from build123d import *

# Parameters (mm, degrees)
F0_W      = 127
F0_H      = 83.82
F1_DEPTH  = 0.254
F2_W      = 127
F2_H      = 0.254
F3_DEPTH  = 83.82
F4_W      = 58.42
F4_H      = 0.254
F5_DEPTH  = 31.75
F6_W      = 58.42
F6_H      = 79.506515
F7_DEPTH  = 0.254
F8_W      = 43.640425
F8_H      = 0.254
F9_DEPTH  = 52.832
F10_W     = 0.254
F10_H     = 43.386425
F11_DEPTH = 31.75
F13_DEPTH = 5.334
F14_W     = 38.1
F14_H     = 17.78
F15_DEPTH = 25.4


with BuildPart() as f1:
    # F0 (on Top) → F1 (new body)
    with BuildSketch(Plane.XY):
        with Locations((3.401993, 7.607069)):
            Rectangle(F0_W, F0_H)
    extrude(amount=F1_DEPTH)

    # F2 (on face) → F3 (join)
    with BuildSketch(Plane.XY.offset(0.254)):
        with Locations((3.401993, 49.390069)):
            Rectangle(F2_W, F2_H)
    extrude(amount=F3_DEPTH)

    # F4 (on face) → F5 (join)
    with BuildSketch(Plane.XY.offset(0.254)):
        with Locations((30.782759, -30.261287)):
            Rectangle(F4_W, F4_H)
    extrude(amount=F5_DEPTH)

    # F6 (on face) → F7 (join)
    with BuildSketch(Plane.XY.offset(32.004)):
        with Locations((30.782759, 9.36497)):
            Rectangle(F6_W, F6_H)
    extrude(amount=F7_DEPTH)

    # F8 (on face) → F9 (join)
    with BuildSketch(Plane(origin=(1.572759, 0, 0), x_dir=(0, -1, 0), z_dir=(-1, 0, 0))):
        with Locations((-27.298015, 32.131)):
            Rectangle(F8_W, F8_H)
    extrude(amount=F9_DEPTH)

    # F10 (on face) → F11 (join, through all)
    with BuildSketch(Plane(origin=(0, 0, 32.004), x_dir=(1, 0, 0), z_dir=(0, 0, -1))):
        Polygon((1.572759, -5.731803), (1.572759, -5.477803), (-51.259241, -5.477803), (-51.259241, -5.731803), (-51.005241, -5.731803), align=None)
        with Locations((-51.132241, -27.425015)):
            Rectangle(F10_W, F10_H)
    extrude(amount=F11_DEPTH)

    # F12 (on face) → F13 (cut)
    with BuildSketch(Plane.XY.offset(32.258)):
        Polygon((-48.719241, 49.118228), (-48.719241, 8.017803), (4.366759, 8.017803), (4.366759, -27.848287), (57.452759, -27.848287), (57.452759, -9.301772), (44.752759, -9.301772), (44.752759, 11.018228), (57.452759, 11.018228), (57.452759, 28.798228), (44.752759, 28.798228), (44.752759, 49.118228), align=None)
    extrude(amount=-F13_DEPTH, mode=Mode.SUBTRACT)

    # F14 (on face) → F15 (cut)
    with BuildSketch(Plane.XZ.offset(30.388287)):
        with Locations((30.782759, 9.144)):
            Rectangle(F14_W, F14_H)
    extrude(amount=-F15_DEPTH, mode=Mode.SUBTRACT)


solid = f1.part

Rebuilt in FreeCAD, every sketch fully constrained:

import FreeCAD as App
import Part
import Sketcher
Q = App.Units.Quantity

doc = App.newDocument("Part")
body = doc.addObject("PartDesign::Body", "Body")

sketch1 = body.newObject("Sketcher::SketchObject", "Sketch")
sketch1.AttachmentSupport = (doc.getObject("XY_Plane"), [""])
sketch1.MapMode = "FlatFace"
sketch1.addGeometry([
    Part.LineSegment(App.Vector(-60, 50, 0), App.Vector(-60, -34, 0)),
    Part.LineSegment(App.Vector(-60, -34, 0), App.Vector(67, -34, 0)),
    Part.LineSegment(App.Vector(67, -34, 0), App.Vector(67, 50, 0)),
    Part.LineSegment(App.Vector(67, 50, 0), App.Vector(-60, 50, 0)),
], False)
sketch1.addConstraint([
    Sketcher.Constraint("Coincident", 0, 2, 1, 1),
    Sketcher.Constraint("Coincident", 1, 2, 2, 1),
    Sketcher.Constraint("Coincident", 2, 2, 3, 1),
    Sketcher.Constraint("Coincident", 3, 2, 0, 1),
    Sketcher.Constraint("Vertical", 0),
    Sketcher.Constraint("Horizontal", 1),
    Sketcher.Constraint("Vertical", 2),
    Sketcher.Constraint("Horizontal", 3),
    Sketcher.Constraint("DistanceX", 1, 1, 1, 2, Q("5 in")),
    Sketcher.Constraint("DistanceY", 0, 2, 0, 1, Q("3.3 in")),
    Sketcher.Constraint("DistanceY", 0, 2, -1, 1, 34.302931),
    Sketcher.Constraint("DistanceX", 0, 2, -1, 1, 60.098007),
])
pad1 = body.newObject("PartDesign::Pad", "Pad")
pad1.Profile = sketch1
pad1.Length = Q("0.01 in")

sketch2 = body.newObject("Sketcher::SketchObject", "Sketch001")
sketch2.AttachmentSupport = (doc.getObject("XY_Plane"), [""])
sketch2.MapMode = "FlatFace"
sketch2.AttachmentOffset = App.Placement(App.Vector(0, 0, 0.01 * 25.4), App.Rotation())
sketch2.addGeometry([
    Part.LineSegment(App.Vector(-60.1, 49.52, 0), App.Vector(-60.1, 49.26, 0)),
    Part.LineSegment(App.Vector(-60.1, 49.26, 0), App.Vector(66.9, 49.26, 0)),
    Part.LineSegment(App.Vector(66.9, 49.26, 0), App.Vector(66.9, 49.52, 0)),
    Part.LineSegment(App.Vector(66.9, 49.52, 0), App.Vector(-60.1, 49.52, 0)),
], False)
sketch2.addConstraint([
    Sketcher.Constraint("Coincident", 0, 2, 1, 1),
    Sketcher.Constraint("Coincident", 1, 2, 2, 1),
    Sketcher.Constraint("Coincident", 2, 2, 3, 1),
    Sketcher.Constraint("Coincident", 3, 2, 0, 1),
    Sketcher.Constraint("Vertical", 0),
    Sketcher.Constraint("Horizontal", 1),
    Sketcher.Constraint("Vertical", 2),
    Sketcher.Constraint("Horizontal", 3),
    Sketcher.Constraint("DistanceX", 1, 1, 1, 2, Q("5 in")),
    Sketcher.Constraint("DistanceY", 0, 2, 0, 1, Q("0.01 in")),
    Sketcher.Constraint("DistanceY", -1, 1, 0, 2, 49.263069),
    Sketcher.Constraint("DistanceX", 0, 2, -1, 1, 60.098007),
])
pad2 = body.newObject("PartDesign::Pad", "Pad001")
pad2.Profile = sketch2
pad2.Length = Q("3.3 in")

sketch3 = body.newObject("Sketcher::SketchObject", "Sketch002")
sketch3.AttachmentSupport = (doc.getObject("XY_Plane"), [""])
sketch3.MapMode = "FlatFace"
sketch3.AttachmentOffset = App.Placement(App.Vector(0, 0, 0.01 * 25.4), App.Rotation())
sketch3.addGeometry([
    Part.LineSegment(App.Vector(1.57, -30.13, 0), App.Vector(1.57, -30.39, 0)),
    Part.LineSegment(App.Vector(1.57, -30.39, 0), App.Vector(59.99, -30.39, 0)),
    Part.LineSegment(App.Vector(59.99, -30.39, 0), App.Vector(59.99, -30.13, 0)),
    Part.LineSegment(App.Vector(59.99, -30.13, 0), App.Vector(1.57, -30.13, 0)),
], False)
sketch3.addConstraint([
    Sketcher.Constraint("Coincident", 0, 2, 1, 1),
    Sketcher.Constraint("Coincident", 1, 2, 2, 1),
    Sketcher.Constraint("Coincident", 2, 2, 3, 1),
    Sketcher.Constraint("Coincident", 3, 2, 0, 1),
    Sketcher.Constraint("Vertical", 0),
    Sketcher.Constraint("Horizontal", 1),
    Sketcher.Constraint("Vertical", 2),
    Sketcher.Constraint("Horizontal", 3),
    Sketcher.Constraint("DistanceX", 1, 1, 1, 2, Q("2.3 in")),
    Sketcher.Constraint("DistanceY", 0, 2, 0, 1, Q("0.01 in")),
    Sketcher.Constraint("DistanceX", -1, 1, 0, 2, 1.572759),
    Sketcher.Constraint("DistanceY", 0, 2, -1, 1, 30.388287),
])
pad3 = body.newObject("PartDesign::Pad", "Pad002")
pad3.Profile = sketch3
pad3.Length = Q("1.25 in")

sketch4 = body.newObject("Sketcher::SketchObject", "Sketch003")
sketch4.AttachmentSupport = (doc.getObject("XY_Plane"), [""])
sketch4.MapMode = "FlatFace"
sketch4.AttachmentOffset = App.Placement(App.Vector(0, 0, 1.26 * 25.4), App.Rotation())
sketch4.addGeometry([
    Part.LineSegment(App.Vector(2, 49, 0), App.Vector(2, -30, 0)),
    Part.LineSegment(App.Vector(2, -30, 0), App.Vector(60, -30, 0)),
    Part.LineSegment(App.Vector(60, -30, 0), App.Vector(60, 49, 0)),
    Part.LineSegment(App.Vector(60, 49, 0), App.Vector(2, 49, 0)),
], False)
sketch4.addConstraint([
    Sketcher.Constraint("Coincident", 0, 2, 1, 1),
    Sketcher.Constraint("Coincident", 1, 2, 2, 1),
    Sketcher.Constraint("Coincident", 2, 2, 3, 1),
    Sketcher.Constraint("Coincident", 3, 2, 0, 1),
    Sketcher.Constraint("Vertical", 0),
    Sketcher.Constraint("Horizontal", 1),
    Sketcher.Constraint("Vertical", 2),
    Sketcher.Constraint("Horizontal", 3),
    Sketcher.Constraint("DistanceX", 1, 1, 1, 2, Q("2.3 in")),
    Sketcher.Constraint("DistanceY", 0, 2, 0, 1, 79.506515),
    Sketcher.Constraint("DistanceX", -1, 1, 0, 2, 1.572759),
    Sketcher.Constraint("DistanceY", 0, 2, -1, 1, 30.388288),
])
pad4 = body.newObject("PartDesign::Pad", "Pad003")
pad4.Profile = sketch4
pad4.Length = Q("0.01 in")

sketch5 = body.newObject("Sketcher::SketchObject", "Sketch004")
sketch5.AttachmentSupport = (doc.getObject("YZ_Plane"), [""])
sketch5.MapMode = "FlatFace"
sketch5.AttachmentOffset = App.Placement(App.Vector(0, 0, 1.572759), App.Rotation())
sketch5.addGeometry([
    Part.LineSegment(App.Vector(49.12, 32.26, 0), App.Vector(49.12, 32, 0)),
    Part.LineSegment(App.Vector(49.12, 32, 0), App.Vector(5.48, 32, 0)),
    Part.LineSegment(App.Vector(5.48, 32, 0), App.Vector(5.48, 32.26, 0)),
    Part.LineSegment(App.Vector(5.48, 32.26, 0), App.Vector(49.12, 32.26, 0)),
], False)
sketch5.addConstraint([
    Sketcher.Constraint("Coincident", 0, 2, 1, 1),
    Sketcher.Constraint("Coincident", 1, 2, 2, 1),
    Sketcher.Constraint("Coincident", 2, 2, 3, 1),
    Sketcher.Constraint("Coincident", 3, 2, 0, 1),
    Sketcher.Constraint("Vertical", 0),
    Sketcher.Constraint("Horizontal", 1),
    Sketcher.Constraint("Vertical", 2),
    Sketcher.Constraint("Horizontal", 3),
    Sketcher.Constraint("DistanceY", 0, 2, 0, 1, Q("0.01 in")),
    Sketcher.Constraint("DistanceY", -1, 1, 0, 2, Q("1.26 in")),
    Sketcher.Constraint("DistanceX", 1, 2, 1, 1, 43.640425),
    Sketcher.Constraint("DistanceX", -1, 1, 0, 2, 49.118228),
])
pad5 = body.newObject("PartDesign::Pad", "Pad004")
pad5.Profile = sketch5
pad5.Length = Q("2.08 in")
pad5.Reversed = True

sketch6 = body.newObject("Sketcher::SketchObject", "Sketch005")
sketch6.AttachmentSupport = (doc.getObject("XY_Plane"), [""])
sketch6.MapMode = "FlatFace"
sketch6.AttachmentOffset = App.Placement(App.Vector(0, 0, 1.26 * 25.4), App.Rotation())
sketch6.addGeometry([
    Part.LineSegment(App.Vector(-51.01, 5.73, 0), App.Vector(1.57, 5.73, 0)),
    Part.LineSegment(App.Vector(1.57, 5.73, 0), App.Vector(1.57, 5.48, 0)),
    Part.LineSegment(App.Vector(1.57, 5.48, 0), App.Vector(-51.26, 5.48, 0)),
    Part.LineSegment(App.Vector(-51.26, 5.48, 0), App.Vector(-51.26, 49.12, 0)),
    Part.LineSegment(App.Vector(-51.26, 49.12, 0), App.Vector(-51.01, 49.12, 0)),
    Part.LineSegment(App.Vector(-51.01, 49.12, 0), App.Vector(-51.01, 5.73, 0)),
], False)
sketch6.addConstraint([
    Sketcher.Constraint("Coincident", 0, 2, 1, 1),
    Sketcher.Constraint("Coincident", 1, 2, 2, 1),
    Sketcher.Constraint("Coincident", 2, 2, 3, 1),
    Sketcher.Constraint("Coincident", 3, 2, 4, 1),
    Sketcher.Constraint("Coincident", 4, 2, 5, 1),
    Sketcher.Constraint("Coincident", 5, 2, 0, 1),
    Sketcher.Constraint("Horizontal", 0),
    Sketcher.Constraint("Vertical", 1),
    Sketcher.Constraint("Horizontal", 2),
    Sketcher.Constraint("Vertical", 3),
    Sketcher.Constraint("Horizontal", 4),
    Sketcher.Constraint("Vertical", 5),
    Sketcher.Constraint("Equal", 4, 1),
    Sketcher.Constraint("DistanceX", 0, 1, 0, 2, Q("2.07 in")),
    Sketcher.Constraint("DistanceX", 2, 2, 2, 1, Q("2.08 in")),
    Sketcher.Constraint("DistanceY", 3, 1, 3, 2, 43.640425),
    Sketcher.Constraint("DistanceX", -1, 1, 0, 2, 1.572759),
    Sketcher.Constraint("DistanceY", -1, 1, 0, 2, 5.731803),
])
pad6 = body.newObject("PartDesign::Pad", "Pad005")
pad6.Profile = sketch6
pad6.Type = "UpToLast"
pad6.Reversed = True

sketch7 = body.newObject("Sketcher::SketchObject", "Sketch006")
sketch7.AttachmentSupport = (doc.getObject("XY_Plane"), [""])
sketch7.MapMode = "FlatFace"
sketch7.AttachmentOffset = App.Placement(App.Vector(0, 0, 1.27 * 25.4), App.Rotation())
sketch7.addGeometry([
    Part.LineSegment(App.Vector(-49, 49, 0), App.Vector(-49, 8, 0)),
    Part.LineSegment(App.Vector(-49, 8, 0), App.Vector(4, 8, 0)),
    Part.LineSegment(App.Vector(4, 8, 0), App.Vector(4, -28, 0)),
    Part.LineSegment(App.Vector(4, -28, 0), App.Vector(57, -28, 0)),
    Part.LineSegment(App.Vector(57, -28, 0), App.Vector(57, -9, 0)),
    Part.LineSegment(App.Vector(57, -9, 0), App.Vector(45, -9, 0)),
    Part.LineSegment(App.Vector(45, -9, 0), App.Vector(45, 11, 0)),
    Part.LineSegment(App.Vector(45, 11, 0), App.Vector(57, 11, 0)),
    Part.LineSegment(App.Vector(57, 11, 0), App.Vector(57, 29, 0)),
    Part.LineSegment(App.Vector(57, 29, 0), App.Vector(45, 29, 0)),
    Part.LineSegment(App.Vector(45, 29, 0), App.Vector(45, 49, 0)),
    Part.LineSegment(App.Vector(45, 49, 0), App.Vector(-49, 49, 0)),
], False)
sketch7.addConstraint([
    Sketcher.Constraint("Coincident", 0, 2, 1, 1),
    Sketcher.Constraint("Coincident", 1, 2, 2, 1),
    Sketcher.Constraint("Coincident", 2, 2, 3, 1),
    Sketcher.Constraint("Coincident", 3, 2, 4, 1),
    Sketcher.Constraint("Coincident", 4, 2, 5, 1),
    Sketcher.Constraint("Coincident", 5, 2, 6, 1),
    Sketcher.Constraint("Coincident", 6, 2, 7, 1),
    Sketcher.Constraint("Coincident", 7, 2, 8, 1),
    Sketcher.Constraint("Coincident", 8, 2, 9, 1),
    Sketcher.Constraint("Coincident", 9, 2, 10, 1),
    Sketcher.Constraint("Coincident", 10, 2, 11, 1),
    Sketcher.Constraint("Coincident", 11, 2, 0, 1),
    Sketcher.Constraint("Vertical", 0),
    Sketcher.Constraint("Horizontal", 1),
    Sketcher.Constraint("Vertical", 2),
    Sketcher.Constraint("Horizontal", 3),
    Sketcher.Constraint("Vertical", 4),
    Sketcher.Constraint("Horizontal", 5),
    Sketcher.Constraint("Vertical", 6),
    Sketcher.Constraint("Horizontal", 7),
    Sketcher.Constraint("Vertical", 8),
    Sketcher.Constraint("Horizontal", 9),
    Sketcher.Constraint("Vertical", 10),
    Sketcher.Constraint("Horizontal", 11),
    Sketcher.Constraint("Vertical", 4, 2, 7, 2),
    Sketcher.Constraint("Vertical", 6, 2, 9, 2),
    Sketcher.Constraint("Equal", 1, 3),
    Sketcher.Constraint("Equal", 6, 10),
    Sketcher.Constraint("DistanceX", 5, 2, 5, 1, Q("0.5 in")),
    Sketcher.Constraint("DistanceY", 6, 1, 6, 2, Q("0.8 in")),
    Sketcher.Constraint("DistanceY", 8, 1, 8, 2, Q("0.7 in")),
    Sketcher.Constraint("DistanceX", 1, 1, 1, 2, Q("2.09 in")),
    Sketcher.Constraint("DistanceY", 2, 2, 2, 1, 35.86609),
    Sketcher.Constraint("DistanceY", 0, 2, 0, 1, 41.100425),
    Sketcher.Constraint("DistanceX", 0, 2, -1, 1, 48.719241),
    Sketcher.Constraint("DistanceY", -1, 1, 8, 2, 28.798228),
])
pocket1 = body.newObject("PartDesign::Pocket", "Pocket")
pocket1.Profile = sketch7
pocket1.Length = Q("0.21 in")

sketch8 = body.newObject("Sketcher::SketchObject", "Sketch007")
sketch8.AttachmentSupport = (doc.getObject("XZ_Plane"), [""])
sketch8.MapMode = "FlatFace"
sketch8.AttachmentOffset = App.Placement(App.Vector(0, 0, 30.388287), App.Rotation())
sketch8.addGeometry([
    Part.LineSegment(App.Vector(12, 18, 0), App.Vector(12, 0, 0)),
    Part.LineSegment(App.Vector(12, 0, 0), App.Vector(50, 0, 0)),
    Part.LineSegment(App.Vector(50, 0, 0), App.Vector(50, 18, 0)),
    Part.LineSegment(App.Vector(50, 18, 0), App.Vector(12, 18, 0)),
], False)
sketch8.addConstraint([
    Sketcher.Constraint("Coincident", 0, 2, 1, 1),
    Sketcher.Constraint("Coincident", 1, 2, 2, 1),
    Sketcher.Constraint("Coincident", 2, 2, 3, 1),
    Sketcher.Constraint("Coincident", 3, 2, 0, 1),
    Sketcher.Constraint("Vertical", 0),
    Sketcher.Constraint("Horizontal", 1),
    Sketcher.Constraint("Vertical", 2),
    Sketcher.Constraint("Horizontal", 3),
    Sketcher.Constraint("DistanceX", 1, 1, 1, 2, Q("1.5 in")),
    Sketcher.Constraint("DistanceY", 0, 2, 0, 1, Q("0.7 in")),
    Sketcher.Constraint("DistanceY", -1, 1, 0, 2, Q("0.01 in")),
    Sketcher.Constraint("DistanceX", -1, 1, 0, 2, 11.732759),
])
pocket2 = body.newObject("PartDesign::Pocket", "Pocket001")
pocket2.Profile = sketch8
pocket2.Length = Q("1 in")

doc.recompute()
